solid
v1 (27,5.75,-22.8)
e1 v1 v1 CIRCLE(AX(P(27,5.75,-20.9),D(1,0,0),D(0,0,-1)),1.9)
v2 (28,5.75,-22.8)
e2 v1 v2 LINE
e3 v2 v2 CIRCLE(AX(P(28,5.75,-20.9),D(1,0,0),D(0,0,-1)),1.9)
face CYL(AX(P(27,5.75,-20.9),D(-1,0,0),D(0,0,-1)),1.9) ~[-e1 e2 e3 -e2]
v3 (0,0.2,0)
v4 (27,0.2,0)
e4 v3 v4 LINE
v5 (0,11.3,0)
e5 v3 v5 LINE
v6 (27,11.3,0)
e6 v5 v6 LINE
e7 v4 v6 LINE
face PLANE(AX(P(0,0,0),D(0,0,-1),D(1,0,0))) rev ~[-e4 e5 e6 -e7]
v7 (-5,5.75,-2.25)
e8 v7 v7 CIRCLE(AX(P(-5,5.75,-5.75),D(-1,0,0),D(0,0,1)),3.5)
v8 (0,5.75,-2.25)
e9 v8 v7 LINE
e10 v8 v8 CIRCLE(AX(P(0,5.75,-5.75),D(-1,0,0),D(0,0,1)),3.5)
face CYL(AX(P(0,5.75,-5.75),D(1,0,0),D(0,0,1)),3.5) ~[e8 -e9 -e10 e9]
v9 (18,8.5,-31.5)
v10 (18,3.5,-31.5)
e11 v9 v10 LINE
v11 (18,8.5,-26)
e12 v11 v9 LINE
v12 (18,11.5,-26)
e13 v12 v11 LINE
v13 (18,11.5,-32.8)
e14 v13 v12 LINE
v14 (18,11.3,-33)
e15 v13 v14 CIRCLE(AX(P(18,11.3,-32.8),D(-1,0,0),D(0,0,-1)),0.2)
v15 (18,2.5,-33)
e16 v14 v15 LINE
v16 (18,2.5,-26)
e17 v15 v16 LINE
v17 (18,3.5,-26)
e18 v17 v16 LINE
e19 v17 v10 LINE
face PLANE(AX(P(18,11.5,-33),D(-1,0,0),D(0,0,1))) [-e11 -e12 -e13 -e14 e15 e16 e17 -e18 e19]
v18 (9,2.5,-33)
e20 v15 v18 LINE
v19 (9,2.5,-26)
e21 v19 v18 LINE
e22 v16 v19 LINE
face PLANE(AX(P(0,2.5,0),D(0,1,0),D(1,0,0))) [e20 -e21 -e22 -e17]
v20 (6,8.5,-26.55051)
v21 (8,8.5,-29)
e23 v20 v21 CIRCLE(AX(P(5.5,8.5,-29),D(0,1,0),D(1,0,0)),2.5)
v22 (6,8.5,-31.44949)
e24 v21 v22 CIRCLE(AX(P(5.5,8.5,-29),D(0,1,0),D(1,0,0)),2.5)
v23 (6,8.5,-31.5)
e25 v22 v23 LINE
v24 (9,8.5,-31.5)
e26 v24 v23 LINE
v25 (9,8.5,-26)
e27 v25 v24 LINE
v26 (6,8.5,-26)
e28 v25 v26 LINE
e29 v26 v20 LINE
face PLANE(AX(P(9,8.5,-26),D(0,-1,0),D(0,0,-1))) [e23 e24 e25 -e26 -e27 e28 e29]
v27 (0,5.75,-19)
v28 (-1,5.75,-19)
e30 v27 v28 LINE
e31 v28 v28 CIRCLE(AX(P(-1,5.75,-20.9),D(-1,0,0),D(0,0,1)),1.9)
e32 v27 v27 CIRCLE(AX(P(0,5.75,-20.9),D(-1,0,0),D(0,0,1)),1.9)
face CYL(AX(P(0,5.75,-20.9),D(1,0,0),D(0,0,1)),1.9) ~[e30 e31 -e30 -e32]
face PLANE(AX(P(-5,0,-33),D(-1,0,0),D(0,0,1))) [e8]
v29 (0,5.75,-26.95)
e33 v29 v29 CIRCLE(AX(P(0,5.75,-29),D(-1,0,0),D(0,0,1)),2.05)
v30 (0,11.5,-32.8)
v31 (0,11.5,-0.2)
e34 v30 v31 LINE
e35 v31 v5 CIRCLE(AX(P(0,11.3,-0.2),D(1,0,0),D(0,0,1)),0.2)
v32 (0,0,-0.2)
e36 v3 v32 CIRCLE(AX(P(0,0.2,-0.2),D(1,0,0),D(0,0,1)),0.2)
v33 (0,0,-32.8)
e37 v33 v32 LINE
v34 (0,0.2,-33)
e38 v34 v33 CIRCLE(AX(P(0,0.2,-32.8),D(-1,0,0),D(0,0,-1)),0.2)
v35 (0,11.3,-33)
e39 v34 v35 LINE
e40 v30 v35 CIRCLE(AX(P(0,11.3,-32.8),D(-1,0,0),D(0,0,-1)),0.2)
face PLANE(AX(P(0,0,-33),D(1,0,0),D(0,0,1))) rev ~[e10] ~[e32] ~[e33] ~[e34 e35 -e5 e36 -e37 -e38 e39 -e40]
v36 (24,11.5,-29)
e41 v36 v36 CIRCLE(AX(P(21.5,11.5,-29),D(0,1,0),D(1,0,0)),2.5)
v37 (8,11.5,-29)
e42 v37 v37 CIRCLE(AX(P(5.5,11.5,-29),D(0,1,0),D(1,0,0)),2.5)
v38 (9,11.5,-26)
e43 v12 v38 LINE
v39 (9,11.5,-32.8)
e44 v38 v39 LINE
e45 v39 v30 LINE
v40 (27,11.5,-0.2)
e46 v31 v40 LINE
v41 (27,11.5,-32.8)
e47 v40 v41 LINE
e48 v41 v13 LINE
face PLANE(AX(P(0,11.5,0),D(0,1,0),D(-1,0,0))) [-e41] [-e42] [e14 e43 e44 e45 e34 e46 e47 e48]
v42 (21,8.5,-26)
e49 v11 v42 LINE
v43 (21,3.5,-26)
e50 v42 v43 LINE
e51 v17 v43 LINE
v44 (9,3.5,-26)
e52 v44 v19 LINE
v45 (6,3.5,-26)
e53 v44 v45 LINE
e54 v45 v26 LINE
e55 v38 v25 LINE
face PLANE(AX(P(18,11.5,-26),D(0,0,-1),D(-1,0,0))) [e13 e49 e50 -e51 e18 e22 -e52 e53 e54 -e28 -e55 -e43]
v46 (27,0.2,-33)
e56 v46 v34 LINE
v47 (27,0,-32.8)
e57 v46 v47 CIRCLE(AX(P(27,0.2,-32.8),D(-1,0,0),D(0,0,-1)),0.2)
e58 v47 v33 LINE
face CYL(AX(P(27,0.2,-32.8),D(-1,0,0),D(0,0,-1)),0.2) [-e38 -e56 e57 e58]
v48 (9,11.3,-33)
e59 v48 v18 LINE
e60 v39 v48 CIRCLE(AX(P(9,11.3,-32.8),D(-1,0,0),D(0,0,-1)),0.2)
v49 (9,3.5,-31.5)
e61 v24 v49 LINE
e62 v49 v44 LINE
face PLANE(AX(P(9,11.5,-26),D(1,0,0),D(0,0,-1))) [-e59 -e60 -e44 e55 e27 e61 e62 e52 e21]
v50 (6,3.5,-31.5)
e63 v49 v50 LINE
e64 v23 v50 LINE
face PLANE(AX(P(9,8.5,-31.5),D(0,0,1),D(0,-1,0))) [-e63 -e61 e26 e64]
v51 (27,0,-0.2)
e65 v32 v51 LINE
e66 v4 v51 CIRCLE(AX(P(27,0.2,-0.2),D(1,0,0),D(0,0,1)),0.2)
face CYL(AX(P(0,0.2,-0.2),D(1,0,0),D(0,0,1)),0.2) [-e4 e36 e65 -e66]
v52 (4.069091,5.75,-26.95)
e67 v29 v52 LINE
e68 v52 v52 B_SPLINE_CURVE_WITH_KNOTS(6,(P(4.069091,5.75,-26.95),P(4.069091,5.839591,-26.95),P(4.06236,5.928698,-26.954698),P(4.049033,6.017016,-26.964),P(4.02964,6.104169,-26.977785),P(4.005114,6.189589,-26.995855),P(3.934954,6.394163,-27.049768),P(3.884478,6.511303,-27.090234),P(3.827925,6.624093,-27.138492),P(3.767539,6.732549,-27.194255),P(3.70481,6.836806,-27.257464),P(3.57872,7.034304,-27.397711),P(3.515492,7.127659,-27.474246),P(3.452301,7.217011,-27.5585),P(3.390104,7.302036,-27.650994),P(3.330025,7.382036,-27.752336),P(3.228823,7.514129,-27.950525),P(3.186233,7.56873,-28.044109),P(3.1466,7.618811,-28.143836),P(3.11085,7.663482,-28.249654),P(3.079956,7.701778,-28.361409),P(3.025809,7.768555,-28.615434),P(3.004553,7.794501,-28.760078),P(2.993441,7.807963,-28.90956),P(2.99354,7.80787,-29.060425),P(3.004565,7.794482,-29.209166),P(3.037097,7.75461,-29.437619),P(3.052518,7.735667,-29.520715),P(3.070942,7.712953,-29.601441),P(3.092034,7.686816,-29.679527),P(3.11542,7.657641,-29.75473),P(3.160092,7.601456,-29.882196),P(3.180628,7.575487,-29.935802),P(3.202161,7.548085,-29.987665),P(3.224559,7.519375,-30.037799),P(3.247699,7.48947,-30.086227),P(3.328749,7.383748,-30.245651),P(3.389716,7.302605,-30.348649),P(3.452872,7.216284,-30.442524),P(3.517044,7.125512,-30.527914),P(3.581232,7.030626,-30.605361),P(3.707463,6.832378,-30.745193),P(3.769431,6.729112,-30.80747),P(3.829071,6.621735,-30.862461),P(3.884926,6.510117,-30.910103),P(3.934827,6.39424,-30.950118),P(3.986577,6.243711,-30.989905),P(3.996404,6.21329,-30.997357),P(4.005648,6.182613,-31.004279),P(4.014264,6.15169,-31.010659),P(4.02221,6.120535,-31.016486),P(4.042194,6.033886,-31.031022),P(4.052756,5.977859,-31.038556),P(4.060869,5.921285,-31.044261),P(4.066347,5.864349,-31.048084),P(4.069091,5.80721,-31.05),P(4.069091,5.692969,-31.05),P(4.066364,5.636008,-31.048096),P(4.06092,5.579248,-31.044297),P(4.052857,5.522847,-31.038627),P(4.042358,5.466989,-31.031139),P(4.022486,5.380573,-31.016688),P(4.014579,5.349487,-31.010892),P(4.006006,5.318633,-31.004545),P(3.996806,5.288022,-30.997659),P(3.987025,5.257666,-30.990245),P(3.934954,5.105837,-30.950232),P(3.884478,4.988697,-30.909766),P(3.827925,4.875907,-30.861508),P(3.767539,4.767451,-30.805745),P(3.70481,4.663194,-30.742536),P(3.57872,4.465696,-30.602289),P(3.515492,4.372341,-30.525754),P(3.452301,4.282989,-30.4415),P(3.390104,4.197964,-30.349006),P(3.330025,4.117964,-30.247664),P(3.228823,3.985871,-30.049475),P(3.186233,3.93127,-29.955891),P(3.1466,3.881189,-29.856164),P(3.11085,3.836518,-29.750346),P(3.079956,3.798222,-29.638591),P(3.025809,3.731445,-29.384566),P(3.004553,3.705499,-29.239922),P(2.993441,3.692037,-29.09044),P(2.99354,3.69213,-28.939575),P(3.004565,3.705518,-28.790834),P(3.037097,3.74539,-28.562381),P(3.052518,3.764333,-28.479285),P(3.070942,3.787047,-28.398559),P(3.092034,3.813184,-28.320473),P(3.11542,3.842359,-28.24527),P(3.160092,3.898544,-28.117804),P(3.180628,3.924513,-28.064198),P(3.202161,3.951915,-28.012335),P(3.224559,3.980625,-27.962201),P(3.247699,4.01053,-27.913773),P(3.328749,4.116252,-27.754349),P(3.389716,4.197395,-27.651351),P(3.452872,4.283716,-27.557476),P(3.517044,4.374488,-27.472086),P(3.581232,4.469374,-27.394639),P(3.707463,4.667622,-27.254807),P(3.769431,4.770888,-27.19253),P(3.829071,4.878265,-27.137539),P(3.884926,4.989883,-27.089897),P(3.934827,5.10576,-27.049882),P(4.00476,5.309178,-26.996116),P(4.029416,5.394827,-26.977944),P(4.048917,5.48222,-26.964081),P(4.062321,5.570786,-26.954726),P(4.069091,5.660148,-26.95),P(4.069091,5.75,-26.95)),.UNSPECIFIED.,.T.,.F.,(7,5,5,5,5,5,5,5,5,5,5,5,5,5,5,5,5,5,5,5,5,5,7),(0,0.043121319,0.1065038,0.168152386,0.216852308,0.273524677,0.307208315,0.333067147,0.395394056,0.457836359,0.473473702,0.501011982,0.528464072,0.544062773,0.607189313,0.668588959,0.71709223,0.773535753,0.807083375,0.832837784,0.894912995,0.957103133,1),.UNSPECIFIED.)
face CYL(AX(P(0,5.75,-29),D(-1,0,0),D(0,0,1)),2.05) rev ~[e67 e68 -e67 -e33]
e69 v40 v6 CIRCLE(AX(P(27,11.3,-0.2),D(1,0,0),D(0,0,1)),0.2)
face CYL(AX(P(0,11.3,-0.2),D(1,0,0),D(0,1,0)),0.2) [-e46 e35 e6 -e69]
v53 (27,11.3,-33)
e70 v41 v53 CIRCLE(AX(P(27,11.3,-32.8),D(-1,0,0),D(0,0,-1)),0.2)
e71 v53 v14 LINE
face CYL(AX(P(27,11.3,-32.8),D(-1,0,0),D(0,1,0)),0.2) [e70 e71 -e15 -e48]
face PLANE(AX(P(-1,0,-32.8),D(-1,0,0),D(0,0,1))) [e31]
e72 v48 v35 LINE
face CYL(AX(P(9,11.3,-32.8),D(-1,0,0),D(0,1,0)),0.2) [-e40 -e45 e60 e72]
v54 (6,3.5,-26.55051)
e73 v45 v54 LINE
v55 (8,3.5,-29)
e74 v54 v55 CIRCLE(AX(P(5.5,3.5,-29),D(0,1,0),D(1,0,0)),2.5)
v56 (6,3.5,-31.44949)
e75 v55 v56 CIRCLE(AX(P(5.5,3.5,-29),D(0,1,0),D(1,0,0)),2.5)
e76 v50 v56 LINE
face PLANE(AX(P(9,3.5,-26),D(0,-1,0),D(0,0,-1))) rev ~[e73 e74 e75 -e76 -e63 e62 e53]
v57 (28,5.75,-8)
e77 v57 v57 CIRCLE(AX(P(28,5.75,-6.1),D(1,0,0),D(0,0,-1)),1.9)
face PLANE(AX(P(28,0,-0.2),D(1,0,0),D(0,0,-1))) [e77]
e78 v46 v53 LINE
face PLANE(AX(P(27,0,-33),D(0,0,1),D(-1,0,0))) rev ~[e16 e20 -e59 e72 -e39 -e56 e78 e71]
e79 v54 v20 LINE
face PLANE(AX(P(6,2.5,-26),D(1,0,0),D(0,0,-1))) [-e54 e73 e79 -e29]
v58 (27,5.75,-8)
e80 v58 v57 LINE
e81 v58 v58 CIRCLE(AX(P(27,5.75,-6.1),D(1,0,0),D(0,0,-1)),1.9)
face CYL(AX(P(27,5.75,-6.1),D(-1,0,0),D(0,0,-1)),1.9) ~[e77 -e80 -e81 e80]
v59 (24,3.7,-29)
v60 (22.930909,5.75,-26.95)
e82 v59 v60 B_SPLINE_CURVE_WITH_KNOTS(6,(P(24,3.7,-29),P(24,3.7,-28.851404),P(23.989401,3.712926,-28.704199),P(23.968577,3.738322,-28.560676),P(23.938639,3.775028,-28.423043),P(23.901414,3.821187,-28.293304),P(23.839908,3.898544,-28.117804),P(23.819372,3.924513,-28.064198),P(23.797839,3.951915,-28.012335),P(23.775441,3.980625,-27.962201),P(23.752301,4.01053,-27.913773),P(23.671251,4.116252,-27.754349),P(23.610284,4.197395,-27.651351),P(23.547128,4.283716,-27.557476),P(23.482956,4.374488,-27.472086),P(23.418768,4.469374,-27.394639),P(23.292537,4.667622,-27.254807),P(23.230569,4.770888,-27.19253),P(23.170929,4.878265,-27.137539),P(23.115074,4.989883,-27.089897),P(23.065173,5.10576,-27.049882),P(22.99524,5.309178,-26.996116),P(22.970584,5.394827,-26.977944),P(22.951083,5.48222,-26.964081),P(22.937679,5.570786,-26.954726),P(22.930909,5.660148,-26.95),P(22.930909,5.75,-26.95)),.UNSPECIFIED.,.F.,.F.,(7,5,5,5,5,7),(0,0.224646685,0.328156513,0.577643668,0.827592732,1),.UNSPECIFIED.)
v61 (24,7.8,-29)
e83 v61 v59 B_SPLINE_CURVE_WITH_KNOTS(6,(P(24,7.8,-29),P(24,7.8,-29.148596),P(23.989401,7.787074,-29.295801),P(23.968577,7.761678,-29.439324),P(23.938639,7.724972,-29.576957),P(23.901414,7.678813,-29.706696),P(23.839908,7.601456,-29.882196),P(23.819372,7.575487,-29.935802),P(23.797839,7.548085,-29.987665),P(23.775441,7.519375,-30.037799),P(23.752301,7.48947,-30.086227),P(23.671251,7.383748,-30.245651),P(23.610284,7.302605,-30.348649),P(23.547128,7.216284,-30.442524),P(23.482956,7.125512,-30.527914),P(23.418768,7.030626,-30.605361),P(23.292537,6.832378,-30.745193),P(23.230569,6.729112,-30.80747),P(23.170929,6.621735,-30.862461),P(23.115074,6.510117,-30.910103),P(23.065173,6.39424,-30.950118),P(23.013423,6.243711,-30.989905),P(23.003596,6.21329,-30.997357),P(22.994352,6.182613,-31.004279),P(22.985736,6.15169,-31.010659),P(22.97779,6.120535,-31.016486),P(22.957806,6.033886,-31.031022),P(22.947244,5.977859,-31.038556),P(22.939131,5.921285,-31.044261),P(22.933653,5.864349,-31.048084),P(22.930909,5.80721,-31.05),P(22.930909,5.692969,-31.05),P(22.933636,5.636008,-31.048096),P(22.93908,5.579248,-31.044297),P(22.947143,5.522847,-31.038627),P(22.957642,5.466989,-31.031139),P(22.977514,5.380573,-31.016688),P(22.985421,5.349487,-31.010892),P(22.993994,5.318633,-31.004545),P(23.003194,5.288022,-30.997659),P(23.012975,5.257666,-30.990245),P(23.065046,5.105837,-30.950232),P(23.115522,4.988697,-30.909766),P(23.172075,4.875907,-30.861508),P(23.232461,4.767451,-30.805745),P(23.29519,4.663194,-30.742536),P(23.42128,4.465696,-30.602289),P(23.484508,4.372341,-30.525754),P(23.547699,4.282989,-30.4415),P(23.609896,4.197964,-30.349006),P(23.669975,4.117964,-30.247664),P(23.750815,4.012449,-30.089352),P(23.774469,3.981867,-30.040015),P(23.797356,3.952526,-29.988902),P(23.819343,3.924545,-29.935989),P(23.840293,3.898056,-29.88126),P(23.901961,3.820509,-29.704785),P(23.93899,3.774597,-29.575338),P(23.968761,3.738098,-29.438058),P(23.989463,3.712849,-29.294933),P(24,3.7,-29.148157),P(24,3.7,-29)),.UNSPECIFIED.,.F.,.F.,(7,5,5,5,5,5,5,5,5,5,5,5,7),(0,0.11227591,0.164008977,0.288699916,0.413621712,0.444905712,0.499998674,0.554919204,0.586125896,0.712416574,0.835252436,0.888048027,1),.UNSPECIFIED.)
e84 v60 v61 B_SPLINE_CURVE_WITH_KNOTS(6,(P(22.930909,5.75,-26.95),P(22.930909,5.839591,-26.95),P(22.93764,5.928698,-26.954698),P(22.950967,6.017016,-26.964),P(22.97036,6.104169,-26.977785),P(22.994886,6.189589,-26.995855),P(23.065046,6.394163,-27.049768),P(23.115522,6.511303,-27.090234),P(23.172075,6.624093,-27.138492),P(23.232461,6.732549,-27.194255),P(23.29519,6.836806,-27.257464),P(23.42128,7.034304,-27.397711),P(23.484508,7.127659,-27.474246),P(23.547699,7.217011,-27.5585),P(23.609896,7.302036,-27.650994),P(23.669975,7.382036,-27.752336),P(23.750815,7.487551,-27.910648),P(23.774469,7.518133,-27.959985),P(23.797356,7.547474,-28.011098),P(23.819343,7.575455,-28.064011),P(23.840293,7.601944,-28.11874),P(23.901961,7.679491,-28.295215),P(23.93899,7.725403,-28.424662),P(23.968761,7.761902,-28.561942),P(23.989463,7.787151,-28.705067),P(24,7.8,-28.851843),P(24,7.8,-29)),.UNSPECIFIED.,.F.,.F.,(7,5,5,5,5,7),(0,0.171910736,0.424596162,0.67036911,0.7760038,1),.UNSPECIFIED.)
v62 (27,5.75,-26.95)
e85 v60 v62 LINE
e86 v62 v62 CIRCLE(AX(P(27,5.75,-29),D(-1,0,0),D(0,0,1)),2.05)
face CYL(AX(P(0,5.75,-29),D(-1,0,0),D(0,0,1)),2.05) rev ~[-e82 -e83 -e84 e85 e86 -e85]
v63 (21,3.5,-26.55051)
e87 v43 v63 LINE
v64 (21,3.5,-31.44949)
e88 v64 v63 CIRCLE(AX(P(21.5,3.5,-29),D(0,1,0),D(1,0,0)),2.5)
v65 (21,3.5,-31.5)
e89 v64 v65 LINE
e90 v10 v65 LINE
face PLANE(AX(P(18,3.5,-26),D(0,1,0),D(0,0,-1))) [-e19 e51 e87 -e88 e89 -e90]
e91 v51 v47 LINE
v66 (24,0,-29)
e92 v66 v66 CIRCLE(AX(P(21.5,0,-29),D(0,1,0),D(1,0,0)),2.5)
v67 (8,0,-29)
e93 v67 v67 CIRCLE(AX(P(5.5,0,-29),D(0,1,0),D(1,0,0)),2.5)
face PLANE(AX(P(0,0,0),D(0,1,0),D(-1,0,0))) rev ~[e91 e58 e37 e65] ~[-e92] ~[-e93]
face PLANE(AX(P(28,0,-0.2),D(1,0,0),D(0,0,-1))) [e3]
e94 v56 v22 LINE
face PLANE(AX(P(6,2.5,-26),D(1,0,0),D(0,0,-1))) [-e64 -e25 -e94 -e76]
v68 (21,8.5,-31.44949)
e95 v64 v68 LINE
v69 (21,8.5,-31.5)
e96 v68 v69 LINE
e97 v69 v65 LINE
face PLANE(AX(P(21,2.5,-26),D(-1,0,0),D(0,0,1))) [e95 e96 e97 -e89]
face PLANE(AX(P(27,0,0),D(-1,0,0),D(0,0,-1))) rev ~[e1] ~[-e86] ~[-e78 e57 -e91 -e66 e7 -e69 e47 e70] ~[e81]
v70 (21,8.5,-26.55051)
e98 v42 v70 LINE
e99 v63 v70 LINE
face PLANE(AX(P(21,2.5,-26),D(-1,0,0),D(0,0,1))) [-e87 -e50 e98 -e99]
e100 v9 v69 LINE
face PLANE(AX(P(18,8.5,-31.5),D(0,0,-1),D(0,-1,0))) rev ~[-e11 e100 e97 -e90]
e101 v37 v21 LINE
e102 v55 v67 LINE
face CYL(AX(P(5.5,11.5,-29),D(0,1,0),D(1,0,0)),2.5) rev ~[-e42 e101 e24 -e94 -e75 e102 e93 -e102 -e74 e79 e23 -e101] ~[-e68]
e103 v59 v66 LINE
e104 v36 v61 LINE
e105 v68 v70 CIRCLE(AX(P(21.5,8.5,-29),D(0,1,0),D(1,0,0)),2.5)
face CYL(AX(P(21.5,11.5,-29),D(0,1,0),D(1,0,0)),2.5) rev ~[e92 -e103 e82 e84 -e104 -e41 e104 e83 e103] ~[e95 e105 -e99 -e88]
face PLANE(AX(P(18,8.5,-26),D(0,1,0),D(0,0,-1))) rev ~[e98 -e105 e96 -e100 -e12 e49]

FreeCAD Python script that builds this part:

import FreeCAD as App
import Part
import Sketcher
from FreeCAD import Vector


def edges_at(feature, points):
    """Names of the edges that pass closest to the given points."""
    edges = feature.Shape.Edges
    near = lambda p: min(range(len(edges)), key=lambda i: edges[i].distToShape(Part.Vertex(*p))[0])
    return sorted({f"Edge{near(p) + 1}" for p in points})


def add_polygon(sketch, points):
    """Adds a closed chain of lines whose ends are joined by coincident constraints."""
    first, n = sketch.GeometryCount, len(points)
    for a, b in zip(points, points[1:] + points[:1]):
        sketch.addGeometry(Part.LineSegment(App.Vector(*a, 0), App.Vector(*b, 0)), False)
    for i in range(n):
        sketch.addConstraint(Sketcher.Constraint("Coincident", first + i, 2, first + (i + 1) % n, 1))

doc = App.newDocument("Part")
body = doc.addObject("PartDesign::Body", "Body")

sketch1 = body.newObject("Sketcher::SketchObject", "Sketch")
sketch1.AttachmentSupport = (doc.getObject("XZ_Plane"), [""])
sketch1.MapMode = "FlatFace"
add_polygon(sketch1, [(0, -33), (0, 0), (27, 0), (27, -33)])
sketch1.addConstraint([
    Sketcher.Constraint("Vertical", 0),
    Sketcher.Constraint("Horizontal", 1),
    Sketcher.Constraint("Vertical", 2),
    Sketcher.Constraint("Horizontal", 3),
    Sketcher.Constraint("Coincident", 0, 2, -1, 1),
    Sketcher.Constraint("DistanceX", 1, 1, 1, 2, 27.0),
    Sketcher.Constraint("DistanceY", 0, 1, 0, 2, 33.0),
])
pad1 = body.newObject("PartDesign::Pad", "Pad")
pad1.Profile = sketch1
pad1.Length = 11.5
pad1.Reversed = True

sketch2 = body.newObject("Sketcher::SketchObject", "Sketch001")
sketch2.AttachmentSupport = (doc.getObject("YZ_Plane"), [""])
sketch2.MapMode = "FlatFace"
sketch2.addGeometry(Part.Circle(Vector(5.75, -5.75, 0), Vector(0, 0, 1), 3.5), False)
sketch2.addConstraint([
    Sketcher.Constraint("Diameter", 0, 7.0),
    Sketcher.Constraint("DistanceX", -1, 1, 0, 3, 5.75),
    Sketcher.Constraint("DistanceY", 0, 3, -1, 1, 5.75),
])
pad2 = body.newObject("PartDesign::Pad", "Pad001")
pad2.Profile = sketch2
pad2.Length = 5
pad2.Reversed = True

sketch3 = body.newObject("Sketcher::SketchObject", "Sketch002")
sketch3.AttachmentSupport = (doc.getObject("XZ_Plane"), [""])
sketch3.MapMode = "FlatFace"
sketch3.AttachmentOffset = App.Placement(Vector(0, 0, -11.5), App.Rotation())
add_polygon(sketch3, [(18, -26), (18, -33), (9, -33), (9, -26)])
sketch3.addConstraint([
    Sketcher.Constraint("Vertical", 0),
    Sketcher.Constraint("Horizontal", 1),
    Sketcher.Constraint("Vertical", 2),
    Sketcher.Constraint("Horizontal", 3),
    Sketcher.Constraint("DistanceX", 1, 2, 1, 1, 9.0),
    Sketcher.Constraint("DistanceY", 0, 2, 0, 1, 7.0),
    Sketcher.Constraint("DistanceX", -1, 1, 1, 2, 9.0),
    Sketcher.Constraint("DistanceY", 0, 2, -1, 1, 33.0),
])
pocket1 = body.newObject("PartDesign::Pocket", "Pocket")
pocket1.Profile = sketch3
pocket1.Length = 9
pocket1.Reversed = True

sketch4 = body.newObject("Sketcher::SketchObject", "Sketch003")
sketch4.AttachmentSupport = (doc.getObject("XZ_Plane"), [""])
sketch4.MapMode = "FlatFace"
sketch4.AttachmentOffset = App.Placement(Vector(0, 0, -11.5), App.Rotation())
sketch4.addGeometry([
    Part.Circle(Vector(5.5, -29, 0), Vector(0, 0, 1), 2.5),
    Part.Circle(Vector(21.5, -29, 0), Vector(0, 0, 1), 2.5),
], False)
sketch4.addConstraint([
    Sketcher.Constraint("Equal", 0, 1),
    Sketcher.Constraint("Horizontal", 0, 3, 1, 3),
    Sketcher.Constraint("Diameter", 0, 5.0),
    Sketcher.Constraint("DistanceX", 0, 3, 1, 3, 16.0),
    Sketcher.Constraint("DistanceY", 0, 3, -1, 1, 29.0),
    Sketcher.Constraint("DistanceX", -1, 1, 0, 3, 5.5),
])
pocket2 = body.newObject("PartDesign::Pocket", "Pocket001")
pocket2.Profile = sketch4
pocket2.Length = 15
pocket2.Reversed = True

sketch5 = body.newObject("Sketcher::SketchObject", "Sketch004")
sketch5.AttachmentSupport = (doc.getObject("YZ_Plane"), [""])
sketch5.MapMode = "FlatFace"
sketch5.addGeometry(Part.Circle(Vector(5.75, -29, 0), Vector(0, 0, 1), 2.05), False)
sketch5.addConstraint([
    Sketcher.Constraint("Diameter", 0, 4.1),
    Sketcher.Constraint("DistanceY", 0, 3, -1, 1, 29.0),
    Sketcher.Constraint("DistanceX", -1, 1, 0, 3, 5.75),
])
pocket3 = body.newObject("PartDesign::Pocket", "Pocket002")
pocket3.Profile = sketch5
pocket3.Length = 31.75
pocket3.Reversed = True
doc.recompute()

fillet = body.newObject("PartDesign::Fillet", "Fillet")
fillet.Base = (pocket3, edges_at(pocket3, [(13.5, 11.5, 0)]))
fillet.Radius = 0.2
doc.recompute()

fillet2 = body.newObject("PartDesign::Fillet", "Fillet001")
fillet2.Base = (fillet, edges_at(fillet, [
    (4.5, 11.5, -33),
    (22.5, 11.5, -33),
    (13.5, 0, -33),
    (13.5, 0, 0),
]))
fillet2.Radius = 0.2

sketch6 = body.newObject("Sketcher::SketchObject", "Sketch005")
sketch6.AttachmentSupport = (doc.getObject("YZ_Plane"), [""])
sketch6.MapMode = "FlatFace"
sketch6.AttachmentOffset = App.Placement(Vector(0, 0, 9), App.Rotation())
add_polygon(sketch6, [(8.5, -31.5), (8.5, -26), (3.5, -26), (3.5, -31.5)])
sketch6.addConstraint([
    Sketcher.Constraint("Vertical", 0),
    Sketcher.Constraint("Horizontal", 1),
    Sketcher.Constraint("Vertical", 2),
    Sketcher.Constraint("Horizontal", 3),
    Sketcher.Constraint("DistanceX", 1, 2, 1, 1, 5.0),
    Sketcher.Constraint("DistanceY", 0, 1, 0, 2, 5.5),
    Sketcher.Constraint("DistanceY", 0, 2, -1, 1, 26.0),
    Sketcher.Constraint("DistanceX", -1, 1, 0, 2, 8.5),
])
pocket4 = body.newObject("PartDesign::Pocket", "Pocket003")
pocket4.Profile = sketch6
pocket4.Length = 3

sketch7 = body.newObject("Sketcher::SketchObject", "Sketch006")
sketch7.AttachmentSupport = (doc.getObject("YZ_Plane"), [""])
sketch7.MapMode = "FlatFace"
sketch7.AttachmentOffset = App.Placement(Vector(0, 0, 18), App.Rotation())
add_polygon(sketch7, [(3.5, -26), (8.5, -26), (8.5, -31.5), (3.5, -31.5)])
sketch7.addConstraint([
    Sketcher.Constraint("Horizontal", 0),
    Sketcher.Constraint("Vertical", 1),
    Sketcher.Constraint("Horizontal", 2),
    Sketcher.Constraint("Vertical", 3),
    Sketcher.Constraint("DistanceY", 1, 2, 1, 1, 5.5),
    Sketcher.Constraint("DistanceX", 0, 1, 0, 2, 5.0),
    Sketcher.Constraint("DistanceY", 0, 2, -1, 1, 26.0),
    Sketcher.Constraint("DistanceX", -1, 1, 0, 2, 8.5),
])
pocket5 = body.newObject("PartDesign::Pocket", "Pocket004")
pocket5.Profile = sketch7
pocket5.Length = 3
pocket5.Reversed = True

sketch8 = body.newObject("Sketcher::SketchObject", "Sketch007")
sketch8.AttachmentSupport = (doc.getObject("YZ_Plane"), [""])
sketch8.MapMode = "FlatFace"
sketch8.addGeometry(Part.Circle(Vector(5.75, -20.9, 0), Vector(0, 0, 1), 1.9), False)
sketch8.addConstraint([
    Sketcher.Constraint("Diameter", 0, 3.8),
    Sketcher.Constraint("DistanceY", 0, 3, -1, 1, 20.9),
    Sketcher.Constraint("DistanceX", -1, 1, 0, 3, 5.75),
])
pad3 = body.newObject("PartDesign::Pad", "Pad002")
pad3.Profile = sketch8
pad3.Length = 1
pad3.Reversed = True

sketch9 = body.newObject("Sketcher::SketchObject", "Sketch008")
sketch9.AttachmentSupport = (doc.getObject("YZ_Plane"), [""])
sketch9.MapMode = "FlatFace"
sketch9.AttachmentOffset = App.Placement(Vector(0, 0, 27), App.Rotation())
sketch9.addGeometry([
    Part.Circle(Vector(5.75, -20.9, 0), Vector(0, 0, 1), 1.9),
    Part.Circle(Vector(5.75, -6.1, 0), Vector(0, 0, 1), 1.9),
], False)
sketch9.addConstraint([
    Sketcher.Constraint("Equal", 0, 1),
    Sketcher.Constraint("Vertical", 0, 3, 1, 3),
    Sketcher.Constraint("Diameter", 0, 3.8),
    Sketcher.Constraint("DistanceY", 0, 3, -1, 1, 20.9),
    Sketcher.Constraint("DistanceY", 1, 3, -1, 1, 6.1),
    Sketcher.Constraint("DistanceX", -1, 1, 0, 3, 5.75),
])
pad4 = body.newObject("PartDesign::Pad", "Pad003")
pad4.Profile = sketch9
pad4.Length = 1

doc.recompute()
